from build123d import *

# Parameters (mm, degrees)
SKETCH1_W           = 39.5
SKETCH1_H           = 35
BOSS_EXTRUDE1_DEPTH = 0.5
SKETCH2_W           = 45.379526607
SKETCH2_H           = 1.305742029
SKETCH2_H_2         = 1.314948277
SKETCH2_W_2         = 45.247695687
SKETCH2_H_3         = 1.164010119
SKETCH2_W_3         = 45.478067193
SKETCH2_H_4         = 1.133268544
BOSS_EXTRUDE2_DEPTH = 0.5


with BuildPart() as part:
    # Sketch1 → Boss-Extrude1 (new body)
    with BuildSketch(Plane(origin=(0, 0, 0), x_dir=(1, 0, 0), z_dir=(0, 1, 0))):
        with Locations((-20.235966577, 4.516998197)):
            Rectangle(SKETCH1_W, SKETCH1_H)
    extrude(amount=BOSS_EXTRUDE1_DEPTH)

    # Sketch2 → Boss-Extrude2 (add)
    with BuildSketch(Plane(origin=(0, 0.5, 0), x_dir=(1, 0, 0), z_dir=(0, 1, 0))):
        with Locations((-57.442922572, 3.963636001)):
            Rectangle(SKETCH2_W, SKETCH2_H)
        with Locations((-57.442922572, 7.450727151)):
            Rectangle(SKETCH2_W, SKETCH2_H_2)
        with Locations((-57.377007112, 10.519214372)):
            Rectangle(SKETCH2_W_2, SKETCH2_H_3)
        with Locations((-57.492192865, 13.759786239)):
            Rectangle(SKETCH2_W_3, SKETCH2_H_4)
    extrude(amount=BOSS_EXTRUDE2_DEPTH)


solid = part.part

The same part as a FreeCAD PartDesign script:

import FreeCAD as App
import Part
import Sketcher
from FreeCAD import Vector
Q = App.Units.Quantity

doc = App.newDocument("Part")
body = doc.addObject("PartDesign::Body", "Body")

sketch1 = doc.addObject("Sketcher::SketchObject", "Sketch")
body.addObject(sketch1)
sketch1.AttachmentSupport = (doc.XZ_Plane, [""])
sketch1.MapMode = "FlatFace"
sketch1.addGeometry(Part.LineSegment(Vector(-40, -22, 0), Vector(-40, 13, 0)), False)
sketch1.addGeometry(Part.LineSegment(Vector(-40, 13, 0), Vector(0, 13, 0)), False)
sketch1.addGeometry(Part.LineSegment(Vector(0, 13, 0), Vector(0, -22, 0)), False)
sketch1.addGeometry(Part.LineSegment(Vector(0, -22, 0), Vector(-40, -22, 0)), False)
sketch1.addConstraint(Sketcher.Constraint("Coincident", 0, 2, 1, 1))
sketch1.addConstraint(Sketcher.Constraint("Coincident", 1, 2, 2, 1))
sketch1.addConstraint(Sketcher.Constraint("Coincident", 2, 2, 3, 1))
sketch1.addConstraint(Sketcher.Constraint("Coincident", 3, 2, 0, 1))
sketch1.addConstraint(Sketcher.Constraint("Vertical", 0))
sketch1.addConstraint(Sketcher.Constraint("Horizontal", 1))
sketch1.addConstraint(Sketcher.Constraint("Vertical", 2))
sketch1.addConstraint(Sketcher.Constraint("Horizontal", 3))
sketch1.addConstraint(Sketcher.Constraint("DistanceY", 0, 1, 0, 2, Q("35 mm")))
sketch1.addConstraint(Sketcher.Constraint("DistanceX", 1, 1, 1, 2, Q("39.5 mm")))
sketch1.addConstraint(Sketcher.Constraint("DistanceY", -1, 1, 0, 2, Q("12.983002 mm")))
sketch1.addConstraint(Sketcher.Constraint("DistanceX", 0, 2, -1, 1, Q("39.985967 mm")))
pad1 = doc.addObject("PartDesign::Pad", "Pad")
body.addObject(pad1)
pad1.Profile = sketch1
pad1.Length = 0.5
pad1.Reversed = True

sketch2 = doc.addObject("Sketcher::SketchObject", "Sketch001")
body.addObject(sketch2)
sketch2.AttachmentSupport = (doc.XZ_Plane, [""])
sketch2.MapMode = "FlatFace"
sketch2.AttachmentOffset = App.Placement(Vector(0, 0, -0.5), App.Rotation())
sketch2.addGeometry(Part.LineSegment(Vector(-80.1, -4.6, 0), Vector(-80.1, -3.3, 0)), False)
sketch2.addGeometry(Part.LineSegment(Vector(-80.1, -3.3, 0), Vector(-34.8, -3.3, 0)), False)
sketch2.addGeometry(Part.LineSegment(Vector(-34.8, -3.3, 0), Vector(-34.8, -4.6, 0)), False)
sketch2.addGeometry(Part.LineSegment(Vector(-34.8, -4.6, 0), Vector(-80.1, -4.6, 0)), False)
sketch2.addGeometry(Part.LineSegment(Vector(-80.1, -8.1, 0), Vector(-80.1, -6.8, 0)), False)
sketch2.addGeometry(Part.LineSegment(Vector(-80.1, -6.8, 0), Vector(-34.8, -6.8, 0)), False)
sketch2.addGeometry(Part.LineSegment(Vector(-34.8, -6.8, 0), Vector(-34.8, -8.1, 0)), False)
sketch2.addGeometry(Part.LineSegment(Vector(-34.8, -8.1, 0), Vector(-80.1, -8.1, 0)), False)
sketch2.addGeometry(Part.LineSegment(Vector(-80, -11.1, 0), Vector(-80, -9.9, 0)), False)
sketch2.addGeometry(Part.LineSegment(Vector(-80, -9.9, 0), Vector(-34.8, -9.9, 0)), False)
sketch2.addGeometry(Part.LineSegment(Vector(-34.8, -9.9, 0), Vector(-34.8, -11.1, 0)), False)
sketch2.addGeometry(Part.LineSegment(Vector(-34.8, -11.1, 0), Vector(-80, -11.1, 0)), False)
sketch2.addGeometry(Part.LineSegment(Vector(-80.2, -14.3, 0), Vector(-80.2, -13.2, 0)), False)
sketch2.addGeometry(Part.LineSegment(Vector(-80.2, -13.2, 0), Vector(-34.8, -13.2, 0)), False)
sketch2.addGeometry(Part.LineSegment(Vector(-34.8, -13.2, 0), Vector(-34.8, -14.3, 0)), False)
sketch2.addGeometry(Part.LineSegment(Vector(-34.8, -14.3, 0), Vector(-80.2, -14.3, 0)), False)
sketch2.addConstraint(Sketcher.Constraint("Coincident", 0, 2, 1, 1))
sketch2.addConstraint(Sketcher.Constraint("Coincident", 1, 2, 2, 1))
sketch2.addConstraint(Sketcher.Constraint("Coincident", 2, 2, 3, 1))
sketch2.addConstraint(Sketcher.Constraint("Coincident", 3, 2, 0, 1))
sketch2.addConstraint(Sketcher.Constraint("Coincident", 4, 2, 5, 1))
sketch2.addConstraint(Sketcher.Constraint("Coincident", 5, 2, 6, 1))
sketch2.addConstraint(Sketcher.Constraint("Coincident", 6, 2, 7, 1))
sketch2.addConstraint(Sketcher.Constraint("Coincident", 7, 2, 4, 1))
sketch2.addConstraint(Sketcher.Constraint("Coincident", 8, 2, 9, 1))
sketch2.addConstraint(Sketcher.Constraint("Coincident", 9, 2, 10, 1))
sketch2.addConstraint(Sketcher.Constraint("Coincident", 10, 2, 11, 1))
sketch2.addConstraint(Sketcher.Constraint("Coincident", 11, 2, 8, 1))
sketch2.addConstraint(Sketcher.Constraint("Coincident", 12, 2, 13, 1))
sketch2.addConstraint(Sketcher.Constraint("Coincident", 13, 2, 14, 1))
sketch2.addConstraint(Sketcher.Constraint("Coincident", 14, 2, 15, 1))
sketch2.addConstraint(Sketcher.Constraint("Coincident", 15, 2, 12, 1))
sketch2.addConstraint(Sketcher.Constraint("Vertical", 0))
sketch2.addConstraint(Sketcher.Constraint("Horizontal", 1))
sketch2.addConstraint(Sketcher.Constraint("Vertical", 2))
sketch2.addConstraint(Sketcher.Constraint("Horizontal", 3))
sketch2.addConstraint(Sketcher.Constraint("Vertical", 4))
sketch2.addConstraint(Sketcher.Constraint("Horizontal", 5))
sketch2.addConstraint(Sketcher.Constraint("Vertical", 6))
sketch2.addConstraint(Sketcher.Constraint("Horizontal", 7))
sketch2.addConstraint(Sketcher.Constraint("Vertical", 8))
sketch2.addConstraint(Sketcher.Constraint("Horizontal", 9))
sketch2.addConstraint(Sketcher.Constraint("Vertical", 10))
sketch2.addConstraint(Sketcher.Constraint("Horizontal", 11))
sketch2.addConstraint(Sketcher.Constraint("Vertical", 12))
sketch2.addConstraint(Sketcher.Constraint("Horizontal", 13))
sketch2.addConstraint(Sketcher.Constraint("Vertical", 14))
sketch2.addConstraint(Sketcher.Constraint("Horizontal", 15))
sketch2.addConstraint(Sketcher.Constraint("Vertical", 3, 2, 4, 2))
sketch2.addConstraint(Sketcher.Constraint("Vertical", 2, 2, 5, 2))
sketch2.addConstraint(Sketcher.Constraint("Vertical", 6, 2, 9, 2))
sketch2.addConstraint(Sketcher.Constraint("Vertical", 10, 2, 13, 2))
sketch2.addConstraint(Sketcher.Constraint("DistanceY", 4, 1, 4, 2, Q("1.314948 mm")))
sketch2.addConstraint(Sketcher.Constraint("DistanceY", 8, 1, 8, 2, Q("1.16401 mm")))
sketch2.addConstraint(Sketcher.Constraint("DistanceY", 12, 1, 12, 2, Q("1.133269 mm")))
sketch2.addConstraint(Sketcher.Constraint("DistanceY", 6, 2, -1, 1, Q("8.108201 mm")))
sketch2.addConstraint(Sketcher.Constraint("DistanceY", 12, 2, 4, 2, Q("6.399899 mm")))
sketch2.addConstraint(Sketcher.Constraint("DistanceY", 14, 2, 10, 2, Q("3.225201 mm")))
sketch2.addConstraint(Sketcher.Constraint("DistanceX", 1, 1, 1, 2, Q("45.379527 mm")))
sketch2.addConstraint(Sketcher.Constraint("DistanceX", 9, 1, 9, 2, Q("45.247696 mm")))
sketch2.addConstraint(Sketcher.Constraint("DistanceX", 13, 1, 13, 2, Q("45.478067 mm")))
sketch2.addConstraint(Sketcher.Constraint("DistanceY", 0, 1, 0, 2, Q("1.305742 mm")))
sketch2.addConstraint(Sketcher.Constraint("DistanceX", 1, 2, -1, 1, Q("34.753159 mm")))
sketch2.addConstraint(Sketcher.Constraint("DistanceY", 4, 2, 0, 2, Q("3.482488 mm")))
pad2 = doc.addObject("PartDesign::Pad", "Pad001")
body.addObject(pad2)
pad2.Profile = sketch2
pad2.Length = 0.5
pad2.Reversed = True

doc.recompute()
